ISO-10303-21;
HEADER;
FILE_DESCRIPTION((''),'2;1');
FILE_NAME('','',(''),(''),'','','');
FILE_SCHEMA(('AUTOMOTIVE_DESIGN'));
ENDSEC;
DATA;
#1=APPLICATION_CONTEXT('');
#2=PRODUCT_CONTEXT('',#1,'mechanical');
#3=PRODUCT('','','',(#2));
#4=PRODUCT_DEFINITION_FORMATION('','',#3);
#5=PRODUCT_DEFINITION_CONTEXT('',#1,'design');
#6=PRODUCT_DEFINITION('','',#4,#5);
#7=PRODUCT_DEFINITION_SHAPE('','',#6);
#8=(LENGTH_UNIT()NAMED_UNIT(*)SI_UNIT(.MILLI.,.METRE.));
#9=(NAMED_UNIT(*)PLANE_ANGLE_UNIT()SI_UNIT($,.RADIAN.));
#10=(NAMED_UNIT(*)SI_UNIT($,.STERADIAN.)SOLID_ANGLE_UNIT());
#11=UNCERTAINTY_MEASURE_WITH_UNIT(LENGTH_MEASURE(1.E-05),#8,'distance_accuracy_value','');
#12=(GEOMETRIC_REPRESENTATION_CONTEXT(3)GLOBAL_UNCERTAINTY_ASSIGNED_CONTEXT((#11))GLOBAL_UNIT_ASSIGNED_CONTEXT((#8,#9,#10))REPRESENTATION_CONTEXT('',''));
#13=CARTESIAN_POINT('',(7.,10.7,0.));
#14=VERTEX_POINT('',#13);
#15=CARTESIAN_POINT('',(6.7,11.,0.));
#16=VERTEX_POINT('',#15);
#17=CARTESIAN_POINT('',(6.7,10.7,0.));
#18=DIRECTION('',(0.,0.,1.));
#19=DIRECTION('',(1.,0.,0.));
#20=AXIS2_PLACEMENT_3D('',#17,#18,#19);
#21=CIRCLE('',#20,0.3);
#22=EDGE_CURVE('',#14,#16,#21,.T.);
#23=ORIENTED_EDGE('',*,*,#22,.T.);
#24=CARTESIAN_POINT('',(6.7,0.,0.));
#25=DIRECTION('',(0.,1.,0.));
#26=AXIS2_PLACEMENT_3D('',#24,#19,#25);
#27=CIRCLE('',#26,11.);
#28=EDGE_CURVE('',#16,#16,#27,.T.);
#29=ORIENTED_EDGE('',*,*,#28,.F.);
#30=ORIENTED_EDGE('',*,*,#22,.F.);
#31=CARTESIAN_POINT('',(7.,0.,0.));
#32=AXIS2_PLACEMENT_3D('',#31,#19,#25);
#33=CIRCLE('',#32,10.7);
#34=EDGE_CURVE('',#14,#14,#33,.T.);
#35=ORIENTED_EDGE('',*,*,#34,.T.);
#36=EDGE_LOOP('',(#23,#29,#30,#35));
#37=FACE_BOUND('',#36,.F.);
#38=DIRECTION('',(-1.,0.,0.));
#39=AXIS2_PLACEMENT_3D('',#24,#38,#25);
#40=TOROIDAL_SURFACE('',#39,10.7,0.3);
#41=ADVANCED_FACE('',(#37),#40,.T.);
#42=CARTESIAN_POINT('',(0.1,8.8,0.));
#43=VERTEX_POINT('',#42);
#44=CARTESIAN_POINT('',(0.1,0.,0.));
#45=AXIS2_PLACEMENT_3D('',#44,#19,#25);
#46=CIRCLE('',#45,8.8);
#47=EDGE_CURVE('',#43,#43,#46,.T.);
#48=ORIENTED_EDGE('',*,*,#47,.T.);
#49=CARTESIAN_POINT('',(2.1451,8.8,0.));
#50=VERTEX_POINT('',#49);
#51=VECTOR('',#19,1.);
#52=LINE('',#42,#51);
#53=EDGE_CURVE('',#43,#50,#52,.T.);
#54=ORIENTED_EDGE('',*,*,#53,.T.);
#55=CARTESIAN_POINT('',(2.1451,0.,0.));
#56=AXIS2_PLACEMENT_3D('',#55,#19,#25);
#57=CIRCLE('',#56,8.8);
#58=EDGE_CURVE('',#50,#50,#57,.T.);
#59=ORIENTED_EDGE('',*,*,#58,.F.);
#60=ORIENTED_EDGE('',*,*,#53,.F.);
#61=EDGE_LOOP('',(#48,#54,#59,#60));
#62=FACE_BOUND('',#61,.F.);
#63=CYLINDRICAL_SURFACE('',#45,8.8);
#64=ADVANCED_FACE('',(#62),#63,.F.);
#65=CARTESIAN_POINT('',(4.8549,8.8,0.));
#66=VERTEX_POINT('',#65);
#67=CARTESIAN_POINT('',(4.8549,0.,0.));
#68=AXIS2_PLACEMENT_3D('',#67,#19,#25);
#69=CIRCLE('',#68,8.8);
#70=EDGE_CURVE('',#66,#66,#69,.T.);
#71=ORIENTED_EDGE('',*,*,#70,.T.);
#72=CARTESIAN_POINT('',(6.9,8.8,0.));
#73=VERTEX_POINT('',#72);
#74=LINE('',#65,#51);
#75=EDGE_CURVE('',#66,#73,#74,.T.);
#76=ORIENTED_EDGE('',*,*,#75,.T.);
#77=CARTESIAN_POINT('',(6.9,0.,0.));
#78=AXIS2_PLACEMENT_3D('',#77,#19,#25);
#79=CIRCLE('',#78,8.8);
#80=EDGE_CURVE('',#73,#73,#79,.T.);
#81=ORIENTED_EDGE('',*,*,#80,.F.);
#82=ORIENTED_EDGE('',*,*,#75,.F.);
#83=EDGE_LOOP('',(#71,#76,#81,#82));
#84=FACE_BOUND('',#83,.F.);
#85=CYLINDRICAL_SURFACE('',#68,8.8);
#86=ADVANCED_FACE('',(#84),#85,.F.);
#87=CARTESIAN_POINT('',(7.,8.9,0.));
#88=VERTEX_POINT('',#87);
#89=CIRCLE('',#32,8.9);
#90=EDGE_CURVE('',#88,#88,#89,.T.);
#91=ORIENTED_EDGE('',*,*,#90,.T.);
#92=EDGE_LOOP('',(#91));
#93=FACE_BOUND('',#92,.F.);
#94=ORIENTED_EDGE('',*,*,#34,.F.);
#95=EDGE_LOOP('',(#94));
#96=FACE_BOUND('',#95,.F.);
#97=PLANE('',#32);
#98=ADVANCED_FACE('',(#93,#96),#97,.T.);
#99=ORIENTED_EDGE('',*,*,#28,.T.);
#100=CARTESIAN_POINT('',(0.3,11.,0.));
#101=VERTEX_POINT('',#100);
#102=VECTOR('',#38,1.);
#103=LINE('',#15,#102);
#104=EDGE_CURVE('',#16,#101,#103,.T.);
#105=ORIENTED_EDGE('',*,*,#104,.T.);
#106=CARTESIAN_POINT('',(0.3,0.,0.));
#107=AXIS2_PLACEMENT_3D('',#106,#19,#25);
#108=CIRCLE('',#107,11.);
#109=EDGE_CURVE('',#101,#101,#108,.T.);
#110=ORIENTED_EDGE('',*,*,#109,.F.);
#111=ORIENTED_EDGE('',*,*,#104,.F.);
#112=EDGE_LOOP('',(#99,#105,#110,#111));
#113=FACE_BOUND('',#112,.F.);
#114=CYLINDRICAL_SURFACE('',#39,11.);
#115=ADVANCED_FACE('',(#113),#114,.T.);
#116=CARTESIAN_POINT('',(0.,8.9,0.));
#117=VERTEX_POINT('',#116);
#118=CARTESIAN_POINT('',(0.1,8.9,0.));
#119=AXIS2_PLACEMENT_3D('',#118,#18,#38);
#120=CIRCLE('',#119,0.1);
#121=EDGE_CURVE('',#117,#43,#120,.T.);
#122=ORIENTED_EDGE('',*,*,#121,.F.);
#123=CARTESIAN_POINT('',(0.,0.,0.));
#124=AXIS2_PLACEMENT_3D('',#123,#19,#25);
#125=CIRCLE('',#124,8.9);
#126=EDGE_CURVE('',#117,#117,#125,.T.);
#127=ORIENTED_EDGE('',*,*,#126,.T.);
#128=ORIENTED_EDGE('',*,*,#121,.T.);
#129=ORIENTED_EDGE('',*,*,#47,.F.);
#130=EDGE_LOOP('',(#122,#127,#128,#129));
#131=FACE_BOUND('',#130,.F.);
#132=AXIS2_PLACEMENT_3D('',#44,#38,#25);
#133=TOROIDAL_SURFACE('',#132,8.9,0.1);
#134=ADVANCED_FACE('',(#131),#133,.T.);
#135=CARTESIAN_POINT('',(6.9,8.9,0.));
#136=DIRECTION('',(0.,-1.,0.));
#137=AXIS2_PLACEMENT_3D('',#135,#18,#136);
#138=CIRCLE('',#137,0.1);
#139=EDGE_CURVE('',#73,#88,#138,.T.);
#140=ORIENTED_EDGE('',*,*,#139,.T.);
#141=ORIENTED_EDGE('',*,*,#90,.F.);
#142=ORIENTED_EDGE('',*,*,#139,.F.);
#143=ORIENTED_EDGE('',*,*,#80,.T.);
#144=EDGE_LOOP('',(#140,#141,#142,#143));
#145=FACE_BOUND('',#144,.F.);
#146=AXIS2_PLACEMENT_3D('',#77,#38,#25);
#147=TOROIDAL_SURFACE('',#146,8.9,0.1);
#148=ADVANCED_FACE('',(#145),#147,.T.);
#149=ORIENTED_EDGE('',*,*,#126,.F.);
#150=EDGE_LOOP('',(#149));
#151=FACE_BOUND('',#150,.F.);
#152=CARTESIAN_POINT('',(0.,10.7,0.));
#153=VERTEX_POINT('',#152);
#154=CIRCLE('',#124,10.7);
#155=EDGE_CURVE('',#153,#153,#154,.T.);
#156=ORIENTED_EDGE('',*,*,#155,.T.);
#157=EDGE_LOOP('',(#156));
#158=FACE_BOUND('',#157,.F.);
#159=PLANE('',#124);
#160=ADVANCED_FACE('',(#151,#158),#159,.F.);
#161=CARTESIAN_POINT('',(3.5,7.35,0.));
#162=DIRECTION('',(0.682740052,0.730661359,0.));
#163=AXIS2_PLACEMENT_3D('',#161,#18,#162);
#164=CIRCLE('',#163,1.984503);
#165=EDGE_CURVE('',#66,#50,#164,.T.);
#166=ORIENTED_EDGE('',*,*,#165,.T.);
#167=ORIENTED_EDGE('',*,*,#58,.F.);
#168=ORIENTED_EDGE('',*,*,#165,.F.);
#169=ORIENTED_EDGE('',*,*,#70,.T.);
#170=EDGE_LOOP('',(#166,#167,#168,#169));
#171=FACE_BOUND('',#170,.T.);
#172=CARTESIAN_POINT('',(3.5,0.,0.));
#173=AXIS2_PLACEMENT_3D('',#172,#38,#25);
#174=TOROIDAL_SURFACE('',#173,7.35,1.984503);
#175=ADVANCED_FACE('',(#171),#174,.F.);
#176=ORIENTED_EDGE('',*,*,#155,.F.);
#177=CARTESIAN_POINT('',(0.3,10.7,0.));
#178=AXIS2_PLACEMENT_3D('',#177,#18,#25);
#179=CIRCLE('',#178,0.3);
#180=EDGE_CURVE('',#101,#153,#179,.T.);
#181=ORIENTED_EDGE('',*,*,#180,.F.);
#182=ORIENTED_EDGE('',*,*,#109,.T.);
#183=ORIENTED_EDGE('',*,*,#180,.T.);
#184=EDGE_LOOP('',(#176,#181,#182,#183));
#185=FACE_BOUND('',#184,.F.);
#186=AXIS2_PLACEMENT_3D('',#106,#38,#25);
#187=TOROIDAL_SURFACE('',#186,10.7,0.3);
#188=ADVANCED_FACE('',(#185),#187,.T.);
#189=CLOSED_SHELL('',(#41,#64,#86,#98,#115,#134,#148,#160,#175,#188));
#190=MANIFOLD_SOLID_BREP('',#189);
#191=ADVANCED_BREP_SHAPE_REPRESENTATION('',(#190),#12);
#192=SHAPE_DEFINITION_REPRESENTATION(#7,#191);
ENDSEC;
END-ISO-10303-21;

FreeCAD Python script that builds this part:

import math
import FreeCAD as App
import Part
import Sketcher

doc = App.newDocument("Part")
body = doc.addObject("PartDesign::Body", "Body")

sketch1 = doc.addObject("Sketcher::SketchObject", "Sketch")
body.addObject(sketch1)
sketch1.AttachmentSupport = (doc.XY_Plane, [""])
sketch1.MapMode = "FlatFace"
sketch1.addGeometry([
    Part.ArcOfCircle(Part.Circle(App.Vector(0.3, 10.7, 0), App.Vector(0, 0, 1), 0.3), math.radians(90), math.radians(180)),
    Part.LineSegment(App.Vector(0, 10.7, 0), App.Vector(0, 8.9, 0)),
    Part.ArcOfCircle(Part.Circle(App.Vector(0.1, 8.9, 0), App.Vector(0, 0, 1), 0.1), math.radians(180), math.radians(270)),
    Part.LineSegment(App.Vector(0.1, 8.8, 0), App.Vector(2.15, 8.8, 0)),
    Part.ArcOfCircle(Part.Circle(App.Vector(3.5, 7.35, 0), App.Vector(0, 0, 1), 1.98), math.radians(47), math.radians(133)),
    Part.LineSegment(App.Vector(4.85, 8.8, 0), App.Vector(6.9, 8.8, 0)),
    Part.ArcOfCircle(Part.Circle(App.Vector(6.9, 8.9, 0), App.Vector(0, 0, 1), 0.1), math.radians(-90), math.radians(0)),
    Part.LineSegment(App.Vector(7, 8.9, 0), App.Vector(7, 10.7, 0)),
    Part.ArcOfCircle(Part.Circle(App.Vector(6.7, 10.7, 0), App.Vector(0, 0, 1), 0.3), math.radians(0), math.radians(90)),
    Part.LineSegment(App.Vector(6.7, 11, 0), App.Vector(0.3, 11, 0)),
], False)
sketch1.addConstraint([
    Sketcher.Constraint("Tangent", 0, 2, 1, 1),
    Sketcher.Constraint("Tangent", 1, 2, 2, 1),
    Sketcher.Constraint("Tangent", 2, 2, 3, 1),
    Sketcher.Constraint("Coincident", 3, 2, 4, 2),
    Sketcher.Constraint("Coincident", 4, 1, 5, 1),
    Sketcher.Constraint("Tangent", 5, 2, 6, 1),
    Sketcher.Constraint("Tangent", 6, 2, 7, 1),
    Sketcher.Constraint("Tangent", 7, 2, 8, 1),
    Sketcher.Constraint("Tangent", 8, 2, 9, 1),
    Sketcher.Constraint("Tangent", 9, 2, 0, 1),
    Sketcher.Constraint("Vertical", 1),
    Sketcher.Constraint("Horizontal", 3),
    Sketcher.Constraint("Horizontal", 5),
    Sketcher.Constraint("Vertical", 7),
    Sketcher.Constraint("Horizontal", 9),
    Sketcher.Constraint("Equal", 2, 6),
    Sketcher.Constraint("Equal", 0, 8),
    Sketcher.Constraint("PointOnObject", 0, 2, -2),
    Sketcher.Constraint("Horizontal", 2, 3, 6, 3),
    Sketcher.Constraint("Equal", 3, 5),
    Sketcher.Constraint("Radius", 0, 0.3),
    Sketcher.Constraint("Radius", 2, 0.1),
    Sketcher.Constraint("DistanceX", 9, 2, 9, 1, 6.4),
    Sketcher.Constraint("DistanceY", 1, 2, 1, 1, 1.8),
    Sketcher.Constraint("DistanceY", -1, 1, 8, 2, 11.0),
    Sketcher.Constraint("Radius", 4, 1.9845),
    Sketcher.Constraint("DistanceX", 3, 1, 3, 2, 2.045),
])
revolution = doc.addObject("PartDesign::Revolution", "Revolution")
body.addObject(revolution)
revolution.Profile = sketch1
revolution.ReferenceAxis = (sketch1, ["H_Axis"])
revolution.Angle = 360

doc.recompute()
